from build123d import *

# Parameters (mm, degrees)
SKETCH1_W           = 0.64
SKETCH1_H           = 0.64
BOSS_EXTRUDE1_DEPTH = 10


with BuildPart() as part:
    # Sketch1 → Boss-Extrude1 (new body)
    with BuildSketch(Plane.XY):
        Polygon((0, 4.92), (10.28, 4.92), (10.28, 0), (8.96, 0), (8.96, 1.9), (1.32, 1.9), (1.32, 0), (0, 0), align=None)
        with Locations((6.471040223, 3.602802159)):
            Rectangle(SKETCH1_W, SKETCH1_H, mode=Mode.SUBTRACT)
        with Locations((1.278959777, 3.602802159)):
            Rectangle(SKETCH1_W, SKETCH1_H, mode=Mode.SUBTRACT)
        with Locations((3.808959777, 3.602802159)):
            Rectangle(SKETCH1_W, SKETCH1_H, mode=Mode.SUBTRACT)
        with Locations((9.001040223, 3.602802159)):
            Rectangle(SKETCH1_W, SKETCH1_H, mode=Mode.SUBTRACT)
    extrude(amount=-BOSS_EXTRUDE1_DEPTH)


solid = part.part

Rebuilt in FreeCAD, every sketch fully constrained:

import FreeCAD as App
import Part
import Sketcher

doc = App.newDocument("Part")
params = doc.addObject("Spreadsheet::Sheet", "Params")
for row, (alias, value) in enumerate([
    ("sketch1_height", "1.9 mm"),
    ("sketch1_width", "10.28 mm"),
    ("sketch1_width2", "1.32 mm"),
    ("sketch1_width3", "0.64 mm"),
    ("sketch1_height2", "4.92 mm"),
    ("pad1_length", "10 mm"),
], start=1):
    params.set(f"A{row}", alias)
    params.set(f"B{row}", "=" + value)
    params.setAlias(f"B{row}", alias)

body = doc.addObject("PartDesign::Body", "Body")

# Sketch on XY plane
sketch1 = body.newObject("Sketcher::SketchObject", "Sketch")
sketch1.AttachmentSupport = (doc.getObject("XY_Plane"), [""])
sketch1.MapMode = "FlatFace"
sketch1.addGeometry([
    Part.LineSegment(App.Vector(10.3, 4.9, 0), App.Vector(0, 4.9, 0)),  # 0
    Part.LineSegment(App.Vector(0, 4.9, 0), App.Vector(0, 0, 0)),  # 1
    Part.LineSegment(App.Vector(0, 0, 0), App.Vector(1.3, 0, 0)),  # 2
    Part.LineSegment(App.Vector(1.3, 0, 0), App.Vector(1.3, 1.9, 0)),  # 3
    Part.LineSegment(App.Vector(1.3, 1.9, 0), App.Vector(9, 1.9, 0)),  # 4
    Part.LineSegment(App.Vector(9, 1.9, 0), App.Vector(9, 0, 0)),  # 5
    Part.LineSegment(App.Vector(9, 0, 0), App.Vector(10.3, 0, 0)),  # 6
    Part.LineSegment(App.Vector(10.3, 0, 0), App.Vector(10.3, 4.9, 0)),  # 7
    Part.LineSegment(App.Vector(8.7, 3.3, 0), App.Vector(8.7, 3.9, 0)),  # 8
    Part.LineSegment(App.Vector(8.7, 3.9, 0), App.Vector(9.3, 3.9, 0)),  # 9
    Part.LineSegment(App.Vector(9.3, 3.9, 0), App.Vector(9.3, 3.3, 0)),  # 10
    Part.LineSegment(App.Vector(9.3, 3.3, 0), App.Vector(8.7, 3.3, 0)),  # 11
    Part.LineSegment(App.Vector(6.2, 3.3, 0), App.Vector(6.2, 3.9, 0)),  # 12
    Part.LineSegment(App.Vector(6.2, 3.9, 0), App.Vector(6.8, 3.9, 0)),  # 13
    Part.LineSegment(App.Vector(6.8, 3.9, 0), App.Vector(6.8, 3.3, 0)),  # 14
    Part.LineSegment(App.Vector(6.8, 3.3, 0), App.Vector(6.2, 3.3, 0)),  # 15
    Part.LineSegment(App.Vector(3.5, 3.3, 0), App.Vector(3.5, 3.9, 0)),  # 16
    Part.LineSegment(App.Vector(3.5, 3.9, 0), App.Vector(4.1, 3.9, 0)),  # 17
    Part.LineSegment(App.Vector(4.1, 3.9, 0), App.Vector(4.1, 3.3, 0)),  # 18
    Part.LineSegment(App.Vector(4.1, 3.3, 0), App.Vector(3.5, 3.3, 0)),  # 19
    Part.LineSegment(App.Vector(1, 3.3, 0), App.Vector(1, 3.9, 0)),  # 20
    Part.LineSegment(App.Vector(1, 3.9, 0), App.Vector(1.6, 3.9, 0)),  # 21
    Part.LineSegment(App.Vector(1.6, 3.9, 0), App.Vector(1.6, 3.3, 0)),  # 22
    Part.LineSegment(App.Vector(1.6, 3.3, 0), App.Vector(1, 3.3, 0)),  # 23
], False)
sketch1.addConstraint([
    Sketcher.Constraint("Coincident", 0, 2, 1, 1),
    Sketcher.Constraint("Coincident", 1, 2, 2, 1),
    Sketcher.Constraint("Coincident", 2, 2, 3, 1),
    Sketcher.Constraint("Coincident", 3, 2, 4, 1),
    Sketcher.Constraint("Coincident", 4, 2, 5, 1),
    Sketcher.Constraint("Coincident", 5, 2, 6, 1),
    Sketcher.Constraint("Coincident", 6, 2, 7, 1),
    Sketcher.Constraint("Coincident", 7, 2, 0, 1),
    Sketcher.Constraint("Coincident", 8, 2, 9, 1),
    Sketcher.Constraint("Coincident", 9, 2, 10, 1),
    Sketcher.Constraint("Coincident", 10, 2, 11, 1),
    Sketcher.Constraint("Coincident", 11, 2, 8, 1),
    Sketcher.Constraint("Coincident", 12, 2, 13, 1),
    Sketcher.Constraint("Coincident", 13, 2, 14, 1),
    Sketcher.Constraint("Coincident", 14, 2, 15, 1),
    Sketcher.Constraint("Coincident", 15, 2, 12, 1),
    Sketcher.Constraint("Coincident", 16, 2, 17, 1),
    Sketcher.Constraint("Coincident", 17, 2, 18, 1),
    Sketcher.Constraint("Coincident", 18, 2, 19, 1),
    Sketcher.Constraint("Coincident", 19, 2, 16, 1),
    Sketcher.Constraint("Coincident", 20, 2, 21, 1),
    Sketcher.Constraint("Coincident", 21, 2, 22, 1),
    Sketcher.Constraint("Coincident", 22, 2, 23, 1),
    Sketcher.Constraint("Coincident", 23, 2, 20, 1),
    Sketcher.Constraint("Horizontal", 0),
    Sketcher.Constraint("Vertical", 1),
    Sketcher.Constraint("Horizontal", 2),
    Sketcher.Constraint("Vertical", 3),
    Sketcher.Constraint("Horizontal", 4),
    Sketcher.Constraint("Vertical", 5),
    Sketcher.Constraint("Horizontal", 6),
    Sketcher.Constraint("Vertical", 7),
    Sketcher.Constraint("Vertical", 8),
    Sketcher.Constraint("Horizontal", 9),
    Sketcher.Constraint("Vertical", 10),
    Sketcher.Constraint("Horizontal", 11),
    Sketcher.Constraint("Vertical", 12),
    Sketcher.Constraint("Horizontal", 13),
    Sketcher.Constraint("Vertical", 14),
    Sketcher.Constraint("Horizontal", 15),
    Sketcher.Constraint("Vertical", 16),
    Sketcher.Constraint("Horizontal", 17),
    Sketcher.Constraint("Vertical", 18),
    Sketcher.Constraint("Horizontal", 19),
    Sketcher.Constraint("Vertical", 20),
    Sketcher.Constraint("Horizontal", 21),
    Sketcher.Constraint("Vertical", 22),
    Sketcher.Constraint("Horizontal", 23),
    Sketcher.Constraint("Coincident", 1, 2, -1, 1),
    Sketcher.Constraint("PointOnObject", 5, 2, -1),
    Sketcher.Constraint("Horizontal", 9, 2, 12, 2),
    Sketcher.Constraint("Horizontal", 11, 2, 14, 2),
    Sketcher.Constraint("Horizontal", 13, 2, 16, 2),
    Sketcher.Constraint("Horizontal", 15, 2, 18, 2),
    Sketcher.Constraint("Horizontal", 17, 2, 20, 2),
    Sketcher.Constraint("Horizontal", 19, 2, 22, 2),
    Sketcher.Constraint("Equal", 2, 6),
    Sketcher.Constraint("Equal", 11, 13),
    Sketcher.Constraint("Equal", 15, 17),
    Sketcher.Constraint("Equal", 19, 21),
    Sketcher.Constraint("Equal", 23, 8),
    Sketcher.Constraint("DistanceY", 3, 1, 3, 2, 1.9),
    Sketcher.Constraint("DistanceX", 0, 2, 0, 1, 10.28),
    Sketcher.Constraint("DistanceX", 2, 1, 2, 2, 1.32),
    Sketcher.Constraint("DistanceX", 9, 1, 9, 2, 0.64),
    Sketcher.Constraint("DistanceY", 1, 2, 1, 1, 4.92),
    Sketcher.Constraint("DistanceX", 12, 2, 8, 2, 2.53),
    Sketcher.Constraint("DistanceX", 20, 2, 16, 2, 2.53),
    Sketcher.Constraint("DistanceX", -1, 1, 8, 2, 8.68104),
    Sketcher.Constraint("DistanceX", -1, 1, 16, 2, 3.48896),
    Sketcher.Constraint("DistanceY", -1, 1, 8, 2, 3.922802),
])
sketch1.setExpression("Constraints[61]", "Params.sketch1_height")
sketch1.setExpression("Constraints[62]", "Params.sketch1_width")
sketch1.setExpression("Constraints[63]", "Params.sketch1_width2")
sketch1.setExpression("Constraints[64]", "Params.sketch1_width3")
sketch1.setExpression("Constraints[65]", "Params.sketch1_height2")
pad1 = body.newObject("PartDesign::Pad", "Pad")
pad1.Profile = sketch1
pad1.setExpression("Length", "Params.pad1_length")
pad1.Reversed = True

doc.recompute()
